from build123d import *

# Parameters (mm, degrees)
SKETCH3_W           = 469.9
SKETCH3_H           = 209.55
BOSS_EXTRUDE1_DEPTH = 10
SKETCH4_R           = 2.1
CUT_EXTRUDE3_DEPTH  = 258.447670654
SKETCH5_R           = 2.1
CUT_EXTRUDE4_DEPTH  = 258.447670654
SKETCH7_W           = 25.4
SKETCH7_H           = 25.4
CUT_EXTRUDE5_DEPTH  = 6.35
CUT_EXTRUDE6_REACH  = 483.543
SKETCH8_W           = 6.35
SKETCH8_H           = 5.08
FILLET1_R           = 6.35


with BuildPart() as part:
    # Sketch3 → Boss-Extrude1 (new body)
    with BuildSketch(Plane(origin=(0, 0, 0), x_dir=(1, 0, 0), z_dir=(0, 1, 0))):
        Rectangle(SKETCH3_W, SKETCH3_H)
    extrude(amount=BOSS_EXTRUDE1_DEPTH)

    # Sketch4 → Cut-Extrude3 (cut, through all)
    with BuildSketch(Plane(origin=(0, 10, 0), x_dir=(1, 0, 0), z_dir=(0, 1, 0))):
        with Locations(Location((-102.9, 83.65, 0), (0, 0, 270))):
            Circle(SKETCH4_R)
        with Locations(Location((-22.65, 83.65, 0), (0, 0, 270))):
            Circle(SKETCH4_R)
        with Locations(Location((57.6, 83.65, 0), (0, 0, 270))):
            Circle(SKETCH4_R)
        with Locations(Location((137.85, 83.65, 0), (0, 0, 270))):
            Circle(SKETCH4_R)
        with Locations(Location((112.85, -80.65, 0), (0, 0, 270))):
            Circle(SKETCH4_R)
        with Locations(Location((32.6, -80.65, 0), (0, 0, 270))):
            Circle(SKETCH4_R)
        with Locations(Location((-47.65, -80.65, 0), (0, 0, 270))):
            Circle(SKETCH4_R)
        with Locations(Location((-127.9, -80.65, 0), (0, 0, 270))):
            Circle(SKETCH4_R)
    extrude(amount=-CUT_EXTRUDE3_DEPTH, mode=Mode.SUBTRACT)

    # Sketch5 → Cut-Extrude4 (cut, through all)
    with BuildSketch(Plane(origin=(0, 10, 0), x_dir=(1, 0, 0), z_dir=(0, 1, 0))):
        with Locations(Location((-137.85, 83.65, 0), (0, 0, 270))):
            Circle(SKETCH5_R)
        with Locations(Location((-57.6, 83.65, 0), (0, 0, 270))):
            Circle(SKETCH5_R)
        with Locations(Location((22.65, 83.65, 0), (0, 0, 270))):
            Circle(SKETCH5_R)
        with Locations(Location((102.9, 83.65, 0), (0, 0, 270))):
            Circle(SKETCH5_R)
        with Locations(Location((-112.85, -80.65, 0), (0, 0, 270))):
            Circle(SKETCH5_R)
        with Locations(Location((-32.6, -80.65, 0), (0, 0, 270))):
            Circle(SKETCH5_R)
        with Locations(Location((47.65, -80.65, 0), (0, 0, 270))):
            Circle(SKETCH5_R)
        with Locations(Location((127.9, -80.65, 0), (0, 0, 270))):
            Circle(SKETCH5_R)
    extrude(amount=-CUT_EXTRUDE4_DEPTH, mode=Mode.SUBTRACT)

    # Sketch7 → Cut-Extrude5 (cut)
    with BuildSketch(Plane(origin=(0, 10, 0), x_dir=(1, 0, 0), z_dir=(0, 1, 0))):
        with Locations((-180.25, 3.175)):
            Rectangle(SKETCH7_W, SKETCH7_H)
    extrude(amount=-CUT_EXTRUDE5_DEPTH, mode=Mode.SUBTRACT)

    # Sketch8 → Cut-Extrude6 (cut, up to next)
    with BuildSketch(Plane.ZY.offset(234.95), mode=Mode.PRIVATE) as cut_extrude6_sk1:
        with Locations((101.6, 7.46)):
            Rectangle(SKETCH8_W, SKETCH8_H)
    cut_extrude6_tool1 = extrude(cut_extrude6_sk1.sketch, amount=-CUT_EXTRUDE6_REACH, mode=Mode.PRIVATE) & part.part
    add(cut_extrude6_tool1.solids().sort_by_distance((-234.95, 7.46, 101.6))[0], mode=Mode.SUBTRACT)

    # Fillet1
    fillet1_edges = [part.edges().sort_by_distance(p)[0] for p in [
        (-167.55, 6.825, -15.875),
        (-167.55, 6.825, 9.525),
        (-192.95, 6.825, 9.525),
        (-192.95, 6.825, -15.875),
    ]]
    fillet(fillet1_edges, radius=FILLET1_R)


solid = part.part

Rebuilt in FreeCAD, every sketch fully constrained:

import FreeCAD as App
import Part
import Sketcher
from FreeCAD import Vector
Q = App.Units.Quantity


def edges_at(feature, points):
    """Names of the edges that pass closest to the given points."""
    edges = feature.Shape.Edges
    near = lambda p: min(range(len(edges)), key=lambda i: edges[i].distToShape(Part.Vertex(*p))[0])
    return sorted({f"Edge{near(p) + 1}" for p in points})

doc = App.newDocument("Part")
body = doc.addObject("PartDesign::Body", "Body")

# Sketch on XZ plane
sketch1 = body.newObject("Sketcher::SketchObject", "Sketch")
sketch1.AttachmentSupport = (doc.getObject("XZ_Plane"), [""])
sketch1.MapMode = "FlatFace"
sketch1.addGeometry([
    Part.LineSegment(Vector(-235, -105, 0), Vector(-235, 105, 0)),
    Part.LineSegment(Vector(-235, 105, 0), Vector(235, 105, 0)),
    Part.LineSegment(Vector(235, 105, 0), Vector(235, -105, 0)),
    Part.LineSegment(Vector(235, -105, 0), Vector(-235, -105, 0)),
], False)
sketch1.addConstraint([
    Sketcher.Constraint("Coincident", 0, 2, 1, 1),
    Sketcher.Constraint("Coincident", 1, 2, 2, 1),
    Sketcher.Constraint("Coincident", 2, 2, 3, 1),
    Sketcher.Constraint("Coincident", 3, 2, 0, 1),
    Sketcher.Constraint("Vertical", 0),
    Sketcher.Constraint("Horizontal", 1),
    Sketcher.Constraint("Vertical", 2),
    Sketcher.Constraint("Horizontal", 3),
    Sketcher.Constraint("Symmetric", 0, 2, 2, 2, -1, 1),
    Sketcher.Constraint("DistanceX", 1, 1, 1, 2, Q("18.5 in")),
    Sketcher.Constraint("DistanceY", 0, 1, 0, 2, Q("8.25 in")),
])
pad1 = body.newObject("PartDesign::Pad", "Pad")
pad1.Profile = sketch1
pad1.Length = 10
pad1.Reversed = True

# Sketch on XZ plane
sketch2 = body.newObject("Sketcher::SketchObject", "Sketch001")
sketch2.AttachmentSupport = (doc.getObject("XZ_Plane"), [""])
sketch2.MapMode = "FlatFace"
sketch2.AttachmentOffset = App.Placement(Vector(0, 0, -10), App.Rotation())
sketch2.addGeometry([
    Part.Circle(Vector(-102.9, -83.7, 0), Vector(0, 0, 1), 2.1),  # 0
    Part.Circle(Vector(-22.6, -83.7, 0), Vector(0, 0, 1), 2.1),  # 1
    Part.Circle(Vector(57.6, -83.7, 0), Vector(0, 0, 1), 2.1),  # 2
    Part.Circle(Vector(137.8, -83.7, 0), Vector(0, 0, 1), 2.1),  # 3
    Part.Circle(Vector(112.8, 80.7, 0), Vector(0, 0, 1), 2.1),  # 4
    Part.Circle(Vector(32.6, 80.7, 0), Vector(0, 0, 1), 2.1),  # 5
    Part.Circle(Vector(-47.6, 80.7, 0), Vector(0, 0, 1), 2.1),  # 6
    Part.Circle(Vector(-127.9, 80.7, 0), Vector(0, 0, 1), 2.1),  # 7
], False)
sketch2.addConstraint([
    Sketcher.Constraint("Equal", 0, 1),
    Sketcher.Constraint("Equal", 1, 2),
    Sketcher.Constraint("Equal", 2, 3),
    Sketcher.Constraint("Equal", 3, 4),
    Sketcher.Constraint("Equal", 4, 5),
    Sketcher.Constraint("Equal", 5, 6),
    Sketcher.Constraint("Equal", 6, 7),
    Sketcher.Constraint("Horizontal", 0, 3, 1, 3),
    Sketcher.Constraint("Horizontal", 1, 3, 2, 3),
    Sketcher.Constraint("Horizontal", 2, 3, 3, 3),
    Sketcher.Constraint("Horizontal", 4, 3, 5, 3),
    Sketcher.Constraint("Horizontal", 5, 3, 6, 3),
    Sketcher.Constraint("Horizontal", 6, 3, 7, 3),
    Sketcher.Constraint("Diameter", 0, 4.2),
    Sketcher.Constraint("DistanceX", 0, 3, -1, 1, 102.9),
    Sketcher.Constraint("DistanceY", 0, 3, -1, 1, 83.65),
    Sketcher.Constraint("DistanceX", 1, 3, -1, 1, 22.65),
    Sketcher.Constraint("DistanceX", -1, 1, 2, 3, 57.6),
    Sketcher.Constraint("DistanceX", -1, 1, 3, 3, 137.85),
    Sketcher.Constraint("DistanceX", -1, 1, 4, 3, 112.85),
    Sketcher.Constraint("DistanceY", -1, 1, 4, 3, 80.65),
    Sketcher.Constraint("DistanceX", -1, 1, 5, 3, 32.6),
    Sketcher.Constraint("DistanceX", 6, 3, -1, 1, 47.65),
    Sketcher.Constraint("DistanceX", 7, 3, -1, 1, 127.9),
])
pocket1 = body.newObject("PartDesign::Pocket", "Pocket")
pocket1.Profile = sketch2
pocket1.Type = "ThroughAll"
pocket1.Reversed = True

# Sketch on XZ plane
sketch3 = body.newObject("Sketcher::SketchObject", "Sketch002")
sketch3.AttachmentSupport = (doc.getObject("XZ_Plane"), [""])
sketch3.MapMode = "FlatFace"
sketch3.AttachmentOffset = App.Placement(Vector(0, 0, -10), App.Rotation())
sketch3.addGeometry([
    Part.Circle(Vector(-137.8, -83.7, 0), Vector(0, 0, 1), 2.1),  # 0
    Part.Circle(Vector(-57.6, -83.7, 0), Vector(0, 0, 1), 2.1),  # 1
    Part.Circle(Vector(22.6, -83.7, 0), Vector(0, 0, 1), 2.1),  # 2
    Part.Circle(Vector(102.9, -83.7, 0), Vector(0, 0, 1), 2.1),  # 3
    Part.Circle(Vector(-112.8, 80.7, 0), Vector(0, 0, 1), 2.1),  # 4
    Part.Circle(Vector(-32.6, 80.7, 0), Vector(0, 0, 1), 2.1),  # 5
    Part.Circle(Vector(47.6, 80.7, 0), Vector(0, 0, 1), 2.1),  # 6
    Part.Circle(Vector(127.9, 80.7, 0), Vector(0, 0, 1), 2.1),  # 7
], False)
sketch3.addConstraint([
    Sketcher.Constraint("Equal", 0, 1),
    Sketcher.Constraint("Equal", 1, 2),
    Sketcher.Constraint("Equal", 2, 3),
    Sketcher.Constraint("Equal", 3, 4),
    Sketcher.Constraint("Equal", 4, 5),
    Sketcher.Constraint("Equal", 5, 6),
    Sketcher.Constraint("Equal", 6, 7),
    Sketcher.Constraint("Horizontal", 0, 3, 1, 3),
    Sketcher.Constraint("Horizontal", 1, 3, 2, 3),
    Sketcher.Constraint("Horizontal", 2, 3, 3, 3),
    Sketcher.Constraint("Horizontal", 4, 3, 5, 3),
    Sketcher.Constraint("Horizontal", 5, 3, 6, 3),
    Sketcher.Constraint("Horizontal", 6, 3, 7, 3),
    Sketcher.Constraint("Diameter", 0, 4.2),
    Sketcher.Constraint("DistanceX", 0, 3, -1, 1, 137.85),
    Sketcher.Constraint("DistanceY", 0, 3, -1, 1, 83.65),
    Sketcher.Constraint("DistanceX", 1, 3, -1, 1, 57.6),
    Sketcher.Constraint("DistanceX", -1, 1, 2, 3, 22.65),
    Sketcher.Constraint("DistanceX", -1, 1, 3, 3, 102.9),
    Sketcher.Constraint("DistanceX", 4, 3, -1, 1, 112.85),
    Sketcher.Constraint("DistanceY", -1, 1, 4, 3, 80.65),
    Sketcher.Constraint("DistanceX", 5, 3, -1, 1, 32.6),
    Sketcher.Constraint("DistanceX", -1, 1, 6, 3, 47.65),
    Sketcher.Constraint("DistanceX", -1, 1, 7, 3, 127.9),
])
pocket2 = body.newObject("PartDesign::Pocket", "Pocket001")
pocket2.Profile = sketch3
pocket2.Type = "ThroughAll"
pocket2.Reversed = True

# Sketch on XZ plane
sketch4 = body.newObject("Sketcher::SketchObject", "Sketch003")
sketch4.AttachmentSupport = (doc.getObject("XZ_Plane"), [""])
sketch4.MapMode = "FlatFace"
sketch4.AttachmentOffset = App.Placement(Vector(0, 0, -10), App.Rotation())
sketch4.addGeometry([
    Part.LineSegment(Vector(-193, -16, 0), Vector(-193, 10, 0)),
    Part.LineSegment(Vector(-193, 10, 0), Vector(-168, 10, 0)),
    Part.LineSegment(Vector(-168, 10, 0), Vector(-168, -16, 0)),
    Part.LineSegment(Vector(-168, -16, 0), Vector(-193, -16, 0)),
], False)
sketch4.addConstraint([
    Sketcher.Constraint("Coincident", 0, 2, 1, 1),
    Sketcher.Constraint("Coincident", 1, 2, 2, 1),
    Sketcher.Constraint("Coincident", 2, 2, 3, 1),
    Sketcher.Constraint("Coincident", 3, 2, 0, 1),
    Sketcher.Constraint("Vertical", 0),
    Sketcher.Constraint("Horizontal", 1),
    Sketcher.Constraint("Vertical", 2),
    Sketcher.Constraint("Horizontal", 3),
    Sketcher.Constraint("Equal", 3, 0),
    Sketcher.Constraint("DistanceX", 1, 1, 1, 2, Q("1 in")),
    Sketcher.Constraint("DistanceY", -1, 1, 0, 2, Q("0.375 in")),
    Sketcher.Constraint("DistanceX", 0, 2, -1, 1, 192.95),
])
pocket3 = body.newObject("PartDesign::Pocket", "Pocket002")
pocket3.Profile = sketch4
pocket3.Length = Q("0.25 in")
pocket3.Reversed = True

# Sketch on YZ plane
sketch5 = body.newObject("Sketcher::SketchObject", "Sketch004")
sketch5.AttachmentSupport = (doc.getObject("YZ_Plane"), [""])
sketch5.MapMode = "FlatFace"
sketch5.AttachmentOffset = App.Placement(Vector(0, 0, -9.25 * 25.4), App.Rotation())
sketch5.addGeometry([
    Part.LineSegment(Vector(10, 98, 0), Vector(5, 98, 0)),
    Part.LineSegment(Vector(5, 98, 0), Vector(5, 105, 0)),
    Part.LineSegment(Vector(5, 105, 0), Vector(10, 105, 0)),
    Part.LineSegment(Vector(10, 105, 0), Vector(10, 98, 0)),
], False)
sketch5.addConstraint([
    Sketcher.Constraint("Coincident", 0, 2, 1, 1),
    Sketcher.Constraint("Coincident", 1, 2, 2, 1),
    Sketcher.Constraint("Coincident", 2, 2, 3, 1),
    Sketcher.Constraint("Coincident", 3, 2, 0, 1),
    Sketcher.Constraint("Horizontal", 0),
    Sketcher.Constraint("Vertical", 1),
    Sketcher.Constraint("Horizontal", 2),
    Sketcher.Constraint("Vertical", 3),
    Sketcher.Constraint("DistanceX", 0, 2, 0, 1, Q("0.2 in")),
    Sketcher.Constraint("DistanceY", 1, 1, 1, 2, Q("0.25 in")),
    Sketcher.Constraint("DistanceY", -1, 1, 0, 2, Q("3.875 in")),
    Sketcher.Constraint("DistanceX", -1, 1, 0, 2, 4.92),
])
pocket4 = body.newObject("PartDesign::Pocket", "Pocket003")
pocket4.Profile = sketch5
pocket4.Type = "UpToFirst"
pocket4.Reversed = True
doc.recompute()

fillet = body.newObject("PartDesign::Fillet", "Fillet")
fillet.Base = (pocket4, edges_at(pocket4, [
    (-167.55, 6.825, -15.875),
    (-167.55, 6.825, 9.525),
    (-192.95, 6.825, 9.525),
    (-192.95, 6.825, -15.875),
]))
fillet.Radius = Q("0.25 in")

doc.recompute()
